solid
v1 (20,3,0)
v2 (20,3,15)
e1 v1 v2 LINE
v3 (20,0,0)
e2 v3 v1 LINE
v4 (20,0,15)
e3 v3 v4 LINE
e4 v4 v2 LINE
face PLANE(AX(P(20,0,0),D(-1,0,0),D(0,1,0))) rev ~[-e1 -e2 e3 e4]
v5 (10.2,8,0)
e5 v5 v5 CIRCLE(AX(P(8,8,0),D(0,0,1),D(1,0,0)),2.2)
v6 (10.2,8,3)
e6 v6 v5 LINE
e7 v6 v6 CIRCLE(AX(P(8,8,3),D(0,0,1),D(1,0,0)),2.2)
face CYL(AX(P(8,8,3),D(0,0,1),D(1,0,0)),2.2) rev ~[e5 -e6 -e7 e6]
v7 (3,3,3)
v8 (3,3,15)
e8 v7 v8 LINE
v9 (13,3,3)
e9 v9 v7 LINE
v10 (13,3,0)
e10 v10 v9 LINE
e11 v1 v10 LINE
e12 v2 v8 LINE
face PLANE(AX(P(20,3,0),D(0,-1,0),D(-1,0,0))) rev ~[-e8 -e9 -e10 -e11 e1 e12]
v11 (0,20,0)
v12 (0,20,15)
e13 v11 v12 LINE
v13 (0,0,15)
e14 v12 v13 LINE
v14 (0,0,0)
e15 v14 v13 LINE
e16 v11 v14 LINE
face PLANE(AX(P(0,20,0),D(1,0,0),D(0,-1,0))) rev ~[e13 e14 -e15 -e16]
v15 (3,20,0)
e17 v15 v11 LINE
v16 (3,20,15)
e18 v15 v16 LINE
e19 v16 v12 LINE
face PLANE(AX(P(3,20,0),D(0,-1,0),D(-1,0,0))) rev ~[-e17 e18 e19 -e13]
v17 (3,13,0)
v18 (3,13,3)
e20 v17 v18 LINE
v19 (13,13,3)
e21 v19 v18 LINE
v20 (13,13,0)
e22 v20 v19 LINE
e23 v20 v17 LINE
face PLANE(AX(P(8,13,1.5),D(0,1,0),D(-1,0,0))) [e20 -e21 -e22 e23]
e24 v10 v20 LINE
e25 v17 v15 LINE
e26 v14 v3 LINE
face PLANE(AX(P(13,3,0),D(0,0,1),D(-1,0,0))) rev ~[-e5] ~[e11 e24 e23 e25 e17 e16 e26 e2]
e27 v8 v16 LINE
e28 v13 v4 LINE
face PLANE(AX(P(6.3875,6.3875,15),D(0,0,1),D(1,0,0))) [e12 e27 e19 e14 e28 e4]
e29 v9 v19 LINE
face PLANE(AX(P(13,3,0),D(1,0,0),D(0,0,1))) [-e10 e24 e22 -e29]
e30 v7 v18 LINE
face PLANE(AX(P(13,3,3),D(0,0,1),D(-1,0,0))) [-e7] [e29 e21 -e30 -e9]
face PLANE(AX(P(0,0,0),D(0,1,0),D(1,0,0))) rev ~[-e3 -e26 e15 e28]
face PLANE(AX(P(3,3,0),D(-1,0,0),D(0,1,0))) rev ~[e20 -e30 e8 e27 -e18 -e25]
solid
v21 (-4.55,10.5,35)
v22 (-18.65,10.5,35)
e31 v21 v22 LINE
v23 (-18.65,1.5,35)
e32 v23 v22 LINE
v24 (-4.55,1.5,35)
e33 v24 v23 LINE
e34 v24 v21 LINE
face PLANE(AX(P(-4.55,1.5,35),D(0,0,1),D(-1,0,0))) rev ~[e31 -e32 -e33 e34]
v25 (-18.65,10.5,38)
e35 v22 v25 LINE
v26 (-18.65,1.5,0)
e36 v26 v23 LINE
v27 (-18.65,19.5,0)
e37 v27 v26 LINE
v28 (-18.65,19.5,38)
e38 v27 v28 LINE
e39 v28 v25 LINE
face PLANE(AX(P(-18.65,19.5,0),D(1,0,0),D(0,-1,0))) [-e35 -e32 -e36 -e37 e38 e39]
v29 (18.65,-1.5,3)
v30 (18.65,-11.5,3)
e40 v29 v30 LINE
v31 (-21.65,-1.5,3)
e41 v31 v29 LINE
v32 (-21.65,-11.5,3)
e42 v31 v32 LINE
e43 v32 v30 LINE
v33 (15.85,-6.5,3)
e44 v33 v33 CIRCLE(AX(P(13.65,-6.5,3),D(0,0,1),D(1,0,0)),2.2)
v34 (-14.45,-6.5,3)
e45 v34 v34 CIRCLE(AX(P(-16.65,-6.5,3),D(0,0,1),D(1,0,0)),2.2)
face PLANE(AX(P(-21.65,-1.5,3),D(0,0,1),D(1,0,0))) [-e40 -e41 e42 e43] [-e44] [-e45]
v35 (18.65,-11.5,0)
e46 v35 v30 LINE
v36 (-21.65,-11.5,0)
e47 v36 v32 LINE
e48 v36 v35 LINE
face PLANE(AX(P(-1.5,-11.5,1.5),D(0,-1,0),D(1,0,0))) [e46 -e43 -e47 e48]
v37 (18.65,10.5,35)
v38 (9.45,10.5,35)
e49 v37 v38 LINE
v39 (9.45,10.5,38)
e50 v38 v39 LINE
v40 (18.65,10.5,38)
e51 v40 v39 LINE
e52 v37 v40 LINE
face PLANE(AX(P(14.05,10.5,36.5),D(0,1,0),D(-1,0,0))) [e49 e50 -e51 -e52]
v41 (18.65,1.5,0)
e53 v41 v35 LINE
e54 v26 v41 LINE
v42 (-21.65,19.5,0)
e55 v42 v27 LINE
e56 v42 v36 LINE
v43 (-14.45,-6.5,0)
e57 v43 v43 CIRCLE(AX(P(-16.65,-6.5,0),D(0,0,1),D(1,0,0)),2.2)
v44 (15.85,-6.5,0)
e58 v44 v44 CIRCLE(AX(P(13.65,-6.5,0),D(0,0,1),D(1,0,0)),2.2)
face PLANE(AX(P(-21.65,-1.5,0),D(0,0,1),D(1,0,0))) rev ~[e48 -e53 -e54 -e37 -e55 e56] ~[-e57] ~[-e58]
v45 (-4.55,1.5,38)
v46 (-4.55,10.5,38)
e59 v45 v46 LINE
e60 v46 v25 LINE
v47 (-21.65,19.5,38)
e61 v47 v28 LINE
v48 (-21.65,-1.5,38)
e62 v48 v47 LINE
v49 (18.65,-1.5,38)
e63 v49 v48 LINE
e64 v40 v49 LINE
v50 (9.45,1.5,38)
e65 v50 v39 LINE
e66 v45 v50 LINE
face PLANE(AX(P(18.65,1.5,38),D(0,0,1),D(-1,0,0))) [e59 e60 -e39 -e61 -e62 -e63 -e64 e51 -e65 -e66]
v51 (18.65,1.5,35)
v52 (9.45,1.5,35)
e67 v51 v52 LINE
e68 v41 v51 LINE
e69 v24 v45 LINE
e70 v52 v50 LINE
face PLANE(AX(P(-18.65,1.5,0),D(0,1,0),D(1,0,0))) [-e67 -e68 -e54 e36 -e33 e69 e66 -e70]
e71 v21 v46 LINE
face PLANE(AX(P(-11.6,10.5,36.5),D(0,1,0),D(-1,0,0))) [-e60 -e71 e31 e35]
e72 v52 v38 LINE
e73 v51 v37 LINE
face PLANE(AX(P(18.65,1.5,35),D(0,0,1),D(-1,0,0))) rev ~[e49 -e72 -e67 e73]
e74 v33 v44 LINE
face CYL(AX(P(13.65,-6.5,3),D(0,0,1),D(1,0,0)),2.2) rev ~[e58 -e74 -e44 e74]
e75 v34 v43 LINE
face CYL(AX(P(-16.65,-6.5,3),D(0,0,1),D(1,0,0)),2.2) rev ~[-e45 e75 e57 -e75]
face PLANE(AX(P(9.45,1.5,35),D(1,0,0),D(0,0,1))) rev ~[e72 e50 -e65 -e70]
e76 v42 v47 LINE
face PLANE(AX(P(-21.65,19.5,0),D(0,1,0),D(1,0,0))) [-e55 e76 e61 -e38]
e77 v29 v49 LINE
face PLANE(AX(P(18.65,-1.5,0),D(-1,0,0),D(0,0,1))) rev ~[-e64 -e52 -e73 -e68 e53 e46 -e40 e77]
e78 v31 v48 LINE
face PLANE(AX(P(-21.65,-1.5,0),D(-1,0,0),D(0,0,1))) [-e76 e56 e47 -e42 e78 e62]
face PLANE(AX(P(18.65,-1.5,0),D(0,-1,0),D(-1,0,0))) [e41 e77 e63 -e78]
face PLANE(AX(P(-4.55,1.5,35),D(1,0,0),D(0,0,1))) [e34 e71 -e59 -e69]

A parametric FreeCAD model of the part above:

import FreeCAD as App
import Part
import Sketcher

V = App.Vector


def add_polygon(sketch, points):
    """Adds a closed chain of lines whose ends are joined by coincident constraints."""
    first, n = sketch.GeometryCount, len(points)
    for a, b in zip(points, points[1:] + points[:1]):
        sketch.addGeometry(Part.LineSegment(App.Vector(*a, 0), App.Vector(*b, 0)), False)
    for i in range(n):
        sketch.addConstraint(Sketcher.Constraint("Coincident", first + i, 2, first + (i + 1) % n, 1))

doc = App.newDocument("Part")
body = doc.addObject("PartDesign::Body", "Body")

sketch1 = body.newObject("Sketcher::SketchObject", "Sketch")
sketch1.AttachmentSupport = (doc.getObject("XY_Plane"), [""])
sketch1.MapMode = "FlatFace"
add_polygon(sketch1, [(18.6, 1.5), (-18.6, 1.5), (-18.6, 19.5), (-21.6, 19.5), (-21.6, -1.5), (18.6, -1.5)])
sketch1.addConstraint(Sketcher.Constraint("Horizontal", 0))
sketch1.addConstraint(Sketcher.Constraint("Vertical", 1))
sketch1.addConstraint(Sketcher.Constraint("Horizontal", 2))
sketch1.addConstraint(Sketcher.Constraint("Vertical", 3))
sketch1.addConstraint(Sketcher.Constraint("Horizontal", 4))
sketch1.addConstraint(Sketcher.Constraint("Vertical", 5))
sketch1.addConstraint(Sketcher.Constraint("Symmetric", 0, 2, 4, 2, -1, 1))
sketch1.addConstraint(Sketcher.Constraint("Equal", 2, 5))
sketch1.addConstraint(Sketcher.Constraint("DistanceX", 2, 2, 2, 1, 3.0))
sketch1.addConstraint(Sketcher.Constraint("DistanceY", 1, 1, 1, 2, 18.0))
sketch1.addConstraint(Sketcher.Constraint("DistanceX", 0, 2, 0, 1, 37.3))
pad1 = body.newObject("PartDesign::Pad", "Pad")
pad1.Profile = sketch1
pad1.Length = 38

sketch2 = body.newObject("Sketcher::SketchObject", "Sketch001")
sketch2.AttachmentSupport = (doc.getObject("XZ_Plane"), [""])
sketch2.MapMode = "FlatFace"
sketch2.AttachmentOffset = App.Placement(V(0, 0, -1.5), App.Rotation())
add_polygon(sketch2, [(18.6, 38), (18.6, 35), (9.4, 35), (9.4, 38)])
add_polygon(sketch2, [(-4.5, 38), (-4.5, 35), (-18.6, 35), (-18.6, 38)])
sketch2.addConstraint(Sketcher.Constraint("Vertical", 0))
sketch2.addConstraint(Sketcher.Constraint("Horizontal", 1))
sketch2.addConstraint(Sketcher.Constraint("Vertical", 2))
sketch2.addConstraint(Sketcher.Constraint("Horizontal", 3))
sketch2.addConstraint(Sketcher.Constraint("Vertical", 4))
sketch2.addConstraint(Sketcher.Constraint("Horizontal", 5))
sketch2.addConstraint(Sketcher.Constraint("Vertical", 6))
sketch2.addConstraint(Sketcher.Constraint("Horizontal", 7))
sketch2.addConstraint(Sketcher.Constraint("Symmetric", 0, 2, 5, 2, -2))
sketch2.addConstraint(Sketcher.Constraint("Horizontal", 3, 2, 6, 2))
sketch2.addConstraint(Sketcher.Constraint("DistanceY", 0, 2, 0, 1, 3.0))
sketch2.addConstraint(Sketcher.Constraint("DistanceX", 1, 2, 1, 1, 9.2))
sketch2.addConstraint(Sketcher.Constraint("DistanceX", 5, 2, 5, 1, 14.1))
sketch2.addConstraint(Sketcher.Constraint("DistanceY", -1, 1, 0, 2, 35.0))
sketch2.addConstraint(Sketcher.Constraint("DistanceX", 4, 2, 1, 2, 14.0))
pad2 = body.newObject("PartDesign::Pad", "Pad001")
pad2.Profile = sketch2
pad2.Length = 9
pad2.Reversed = True

sketch3 = body.newObject("Sketcher::SketchObject", "Sketch002")
sketch3.AttachmentSupport = (doc.getObject("XZ_Plane"), [""])
sketch3.MapMode = "FlatFace"
sketch3.AttachmentOffset = App.Placement(V(0, 0, 1.5), App.Rotation())
add_polygon(sketch3, [(-21.6, 3), (-21.6, 0), (18.6, 0), (18.6, 3)])
sketch3.addConstraint(Sketcher.Constraint("Vertical", 0))
sketch3.addConstraint(Sketcher.Constraint("Horizontal", 1))
sketch3.addConstraint(Sketcher.Constraint("Vertical", 2))
sketch3.addConstraint(Sketcher.Constraint("Horizontal", 3))
sketch3.addConstraint(Sketcher.Constraint("PointOnObject", 0, 2, -1))
sketch3.addConstraint(Sketcher.Constraint("DistanceY", 0, 2, 0, 1, 3.0))
sketch3.addConstraint(Sketcher.Constraint("DistanceX", 1, 1, 1, 2, 40.3))
sketch3.addConstraint(Sketcher.Constraint("DistanceX", 0, 2, -1, 1, 21.65))
pad3 = body.newObject("PartDesign::Pad", "Pad002")
pad3.Profile = sketch3
pad3.Length = 10

sketch4 = body.newObject("Sketcher::SketchObject", "Sketch003")
sketch4.AttachmentSupport = (doc.getObject("XY_Plane"), [""])
sketch4.MapMode = "FlatFace"
sketch4.AttachmentOffset = App.Placement(V(0, 0, 3), App.Rotation())
sketch4.addGeometry(Part.Circle(V(-16.6, -6.5, 0), V(0, 0, 1), 2.2), False)
sketch4.addGeometry(Part.Circle(V(13.7, -6.5, 0), V(0, 0, 1), 2.2), False)
sketch4.addConstraint(Sketcher.Constraint("Equal", 0, 1))
sketch4.addConstraint(Sketcher.Constraint("Horizontal", 0, 3, 1, 3))
sketch4.addConstraint(Sketcher.Constraint("Diameter", 0, 4.4))
sketch4.addConstraint(Sketcher.Constraint("DistanceY", 0, 3, -1, 1, 6.5))
sketch4.addConstraint(Sketcher.Constraint("DistanceX", 0, 3, 1, 3, 30.3))
sketch4.addConstraint(Sketcher.Constraint("DistanceX", 0, 3, -1, 1, 16.65))
pocket1 = body.newObject("PartDesign::Pocket", "Pocket")
pocket1.Profile = sketch4
pocket1.Type = "ThroughAll"
body2 = doc.addObject("PartDesign::Body", "Body001")

sketch5 = body2.newObject("Sketcher::SketchObject", "Sketch004")
sketch5.AttachmentSupport = (doc.getObject("XY_Plane001"), [""])
sketch5.MapMode = "FlatFace"
add_polygon(sketch5, [(0, 20), (0, 0), (20, 0), (20, 3), (3, 3), (3, 20)])
sketch5.addConstraint(Sketcher.Constraint("Vertical", 0))
sketch5.addConstraint(Sketcher.Constraint("Horizontal", 1))
sketch5.addConstraint(Sketcher.Constraint("Vertical", 2))
sketch5.addConstraint(Sketcher.Constraint("Horizontal", 3))
sketch5.addConstraint(Sketcher.Constraint("Vertical", 4))
sketch5.addConstraint(Sketcher.Constraint("Horizontal", 5))
sketch5.addConstraint(Sketcher.Constraint("Coincident", 0, 2, -1, 1))
sketch5.addConstraint(Sketcher.Constraint("Equal", 1, 0))
sketch5.addConstraint(Sketcher.Constraint("Equal", 5, 2))
sketch5.addConstraint(Sketcher.Constraint("DistanceX", 1, 1, 1, 2, 20.0))
sketch5.addConstraint(Sketcher.Constraint("DistanceX", 3, 2, 3, 1, 17.0))
pad4 = body2.newObject("PartDesign::Pad", "Pad003")
pad4.Profile = sketch5
pad4.Length = 15

sketch6 = body2.newObject("Sketcher::SketchObject", "Sketch005")
sketch6.AttachmentSupport = (doc.getObject("XZ_Plane001"), [""])
sketch6.MapMode = "FlatFace"
sketch6.AttachmentOffset = App.Placement(V(0, 0, -3), App.Rotation())
add_polygon(sketch6, [(13, 3), (13, 0), (3, 0), (3, 3)])
sketch6.addConstraint(Sketcher.Constraint("Vertical", 0))
sketch6.addConstraint(Sketcher.Constraint("Horizontal", 1))
sketch6.addConstraint(Sketcher.Constraint("Vertical", 2))
sketch6.addConstraint(Sketcher.Constraint("Horizontal", 3))
sketch6.addConstraint(Sketcher.Constraint("PointOnObject", 0, 2, -1))
sketch6.addConstraint(Sketcher.Constraint("DistanceX", 1, 2, 1, 1, 10.0))
sketch6.addConstraint(Sketcher.Constraint("DistanceY", 0, 2, 0, 1, 3.0))
sketch6.addConstraint(Sketcher.Constraint("DistanceX", -1, 1, 0, 2, 13.0))
pad5 = body2.newObject("PartDesign::Pad", "Pad004")
pad5.Profile = sketch6
pad5.Length = 10
pad5.Reversed = True

sketch7 = body2.newObject("Sketcher::SketchObject", "Sketch006")
sketch7.AttachmentSupport = (doc.getObject("XY_Plane001"), [""])
sketch7.MapMode = "FlatFace"
sketch7.AttachmentOffset = App.Placement(V(0, 0, 3), App.Rotation())
sketch7.addGeometry(Part.Circle(V(8, 8, 0), V(0, 0, 1), 2.2), False)
sketch7.addConstraint(Sketcher.Constraint("Diameter", 0, 4.4))
sketch7.addConstraint(Sketcher.Constraint("DistanceX", -1, 1, 0, 3, 8.0))
sketch7.addConstraint(Sketcher.Constraint("DistanceY", -1, 1, 0, 3, 8.0))
pocket2 = body2.newObject("PartDesign::Pocket", "Pocket001")
pocket2.Profile = sketch7
pocket2.Length = 25

doc.recompute()
